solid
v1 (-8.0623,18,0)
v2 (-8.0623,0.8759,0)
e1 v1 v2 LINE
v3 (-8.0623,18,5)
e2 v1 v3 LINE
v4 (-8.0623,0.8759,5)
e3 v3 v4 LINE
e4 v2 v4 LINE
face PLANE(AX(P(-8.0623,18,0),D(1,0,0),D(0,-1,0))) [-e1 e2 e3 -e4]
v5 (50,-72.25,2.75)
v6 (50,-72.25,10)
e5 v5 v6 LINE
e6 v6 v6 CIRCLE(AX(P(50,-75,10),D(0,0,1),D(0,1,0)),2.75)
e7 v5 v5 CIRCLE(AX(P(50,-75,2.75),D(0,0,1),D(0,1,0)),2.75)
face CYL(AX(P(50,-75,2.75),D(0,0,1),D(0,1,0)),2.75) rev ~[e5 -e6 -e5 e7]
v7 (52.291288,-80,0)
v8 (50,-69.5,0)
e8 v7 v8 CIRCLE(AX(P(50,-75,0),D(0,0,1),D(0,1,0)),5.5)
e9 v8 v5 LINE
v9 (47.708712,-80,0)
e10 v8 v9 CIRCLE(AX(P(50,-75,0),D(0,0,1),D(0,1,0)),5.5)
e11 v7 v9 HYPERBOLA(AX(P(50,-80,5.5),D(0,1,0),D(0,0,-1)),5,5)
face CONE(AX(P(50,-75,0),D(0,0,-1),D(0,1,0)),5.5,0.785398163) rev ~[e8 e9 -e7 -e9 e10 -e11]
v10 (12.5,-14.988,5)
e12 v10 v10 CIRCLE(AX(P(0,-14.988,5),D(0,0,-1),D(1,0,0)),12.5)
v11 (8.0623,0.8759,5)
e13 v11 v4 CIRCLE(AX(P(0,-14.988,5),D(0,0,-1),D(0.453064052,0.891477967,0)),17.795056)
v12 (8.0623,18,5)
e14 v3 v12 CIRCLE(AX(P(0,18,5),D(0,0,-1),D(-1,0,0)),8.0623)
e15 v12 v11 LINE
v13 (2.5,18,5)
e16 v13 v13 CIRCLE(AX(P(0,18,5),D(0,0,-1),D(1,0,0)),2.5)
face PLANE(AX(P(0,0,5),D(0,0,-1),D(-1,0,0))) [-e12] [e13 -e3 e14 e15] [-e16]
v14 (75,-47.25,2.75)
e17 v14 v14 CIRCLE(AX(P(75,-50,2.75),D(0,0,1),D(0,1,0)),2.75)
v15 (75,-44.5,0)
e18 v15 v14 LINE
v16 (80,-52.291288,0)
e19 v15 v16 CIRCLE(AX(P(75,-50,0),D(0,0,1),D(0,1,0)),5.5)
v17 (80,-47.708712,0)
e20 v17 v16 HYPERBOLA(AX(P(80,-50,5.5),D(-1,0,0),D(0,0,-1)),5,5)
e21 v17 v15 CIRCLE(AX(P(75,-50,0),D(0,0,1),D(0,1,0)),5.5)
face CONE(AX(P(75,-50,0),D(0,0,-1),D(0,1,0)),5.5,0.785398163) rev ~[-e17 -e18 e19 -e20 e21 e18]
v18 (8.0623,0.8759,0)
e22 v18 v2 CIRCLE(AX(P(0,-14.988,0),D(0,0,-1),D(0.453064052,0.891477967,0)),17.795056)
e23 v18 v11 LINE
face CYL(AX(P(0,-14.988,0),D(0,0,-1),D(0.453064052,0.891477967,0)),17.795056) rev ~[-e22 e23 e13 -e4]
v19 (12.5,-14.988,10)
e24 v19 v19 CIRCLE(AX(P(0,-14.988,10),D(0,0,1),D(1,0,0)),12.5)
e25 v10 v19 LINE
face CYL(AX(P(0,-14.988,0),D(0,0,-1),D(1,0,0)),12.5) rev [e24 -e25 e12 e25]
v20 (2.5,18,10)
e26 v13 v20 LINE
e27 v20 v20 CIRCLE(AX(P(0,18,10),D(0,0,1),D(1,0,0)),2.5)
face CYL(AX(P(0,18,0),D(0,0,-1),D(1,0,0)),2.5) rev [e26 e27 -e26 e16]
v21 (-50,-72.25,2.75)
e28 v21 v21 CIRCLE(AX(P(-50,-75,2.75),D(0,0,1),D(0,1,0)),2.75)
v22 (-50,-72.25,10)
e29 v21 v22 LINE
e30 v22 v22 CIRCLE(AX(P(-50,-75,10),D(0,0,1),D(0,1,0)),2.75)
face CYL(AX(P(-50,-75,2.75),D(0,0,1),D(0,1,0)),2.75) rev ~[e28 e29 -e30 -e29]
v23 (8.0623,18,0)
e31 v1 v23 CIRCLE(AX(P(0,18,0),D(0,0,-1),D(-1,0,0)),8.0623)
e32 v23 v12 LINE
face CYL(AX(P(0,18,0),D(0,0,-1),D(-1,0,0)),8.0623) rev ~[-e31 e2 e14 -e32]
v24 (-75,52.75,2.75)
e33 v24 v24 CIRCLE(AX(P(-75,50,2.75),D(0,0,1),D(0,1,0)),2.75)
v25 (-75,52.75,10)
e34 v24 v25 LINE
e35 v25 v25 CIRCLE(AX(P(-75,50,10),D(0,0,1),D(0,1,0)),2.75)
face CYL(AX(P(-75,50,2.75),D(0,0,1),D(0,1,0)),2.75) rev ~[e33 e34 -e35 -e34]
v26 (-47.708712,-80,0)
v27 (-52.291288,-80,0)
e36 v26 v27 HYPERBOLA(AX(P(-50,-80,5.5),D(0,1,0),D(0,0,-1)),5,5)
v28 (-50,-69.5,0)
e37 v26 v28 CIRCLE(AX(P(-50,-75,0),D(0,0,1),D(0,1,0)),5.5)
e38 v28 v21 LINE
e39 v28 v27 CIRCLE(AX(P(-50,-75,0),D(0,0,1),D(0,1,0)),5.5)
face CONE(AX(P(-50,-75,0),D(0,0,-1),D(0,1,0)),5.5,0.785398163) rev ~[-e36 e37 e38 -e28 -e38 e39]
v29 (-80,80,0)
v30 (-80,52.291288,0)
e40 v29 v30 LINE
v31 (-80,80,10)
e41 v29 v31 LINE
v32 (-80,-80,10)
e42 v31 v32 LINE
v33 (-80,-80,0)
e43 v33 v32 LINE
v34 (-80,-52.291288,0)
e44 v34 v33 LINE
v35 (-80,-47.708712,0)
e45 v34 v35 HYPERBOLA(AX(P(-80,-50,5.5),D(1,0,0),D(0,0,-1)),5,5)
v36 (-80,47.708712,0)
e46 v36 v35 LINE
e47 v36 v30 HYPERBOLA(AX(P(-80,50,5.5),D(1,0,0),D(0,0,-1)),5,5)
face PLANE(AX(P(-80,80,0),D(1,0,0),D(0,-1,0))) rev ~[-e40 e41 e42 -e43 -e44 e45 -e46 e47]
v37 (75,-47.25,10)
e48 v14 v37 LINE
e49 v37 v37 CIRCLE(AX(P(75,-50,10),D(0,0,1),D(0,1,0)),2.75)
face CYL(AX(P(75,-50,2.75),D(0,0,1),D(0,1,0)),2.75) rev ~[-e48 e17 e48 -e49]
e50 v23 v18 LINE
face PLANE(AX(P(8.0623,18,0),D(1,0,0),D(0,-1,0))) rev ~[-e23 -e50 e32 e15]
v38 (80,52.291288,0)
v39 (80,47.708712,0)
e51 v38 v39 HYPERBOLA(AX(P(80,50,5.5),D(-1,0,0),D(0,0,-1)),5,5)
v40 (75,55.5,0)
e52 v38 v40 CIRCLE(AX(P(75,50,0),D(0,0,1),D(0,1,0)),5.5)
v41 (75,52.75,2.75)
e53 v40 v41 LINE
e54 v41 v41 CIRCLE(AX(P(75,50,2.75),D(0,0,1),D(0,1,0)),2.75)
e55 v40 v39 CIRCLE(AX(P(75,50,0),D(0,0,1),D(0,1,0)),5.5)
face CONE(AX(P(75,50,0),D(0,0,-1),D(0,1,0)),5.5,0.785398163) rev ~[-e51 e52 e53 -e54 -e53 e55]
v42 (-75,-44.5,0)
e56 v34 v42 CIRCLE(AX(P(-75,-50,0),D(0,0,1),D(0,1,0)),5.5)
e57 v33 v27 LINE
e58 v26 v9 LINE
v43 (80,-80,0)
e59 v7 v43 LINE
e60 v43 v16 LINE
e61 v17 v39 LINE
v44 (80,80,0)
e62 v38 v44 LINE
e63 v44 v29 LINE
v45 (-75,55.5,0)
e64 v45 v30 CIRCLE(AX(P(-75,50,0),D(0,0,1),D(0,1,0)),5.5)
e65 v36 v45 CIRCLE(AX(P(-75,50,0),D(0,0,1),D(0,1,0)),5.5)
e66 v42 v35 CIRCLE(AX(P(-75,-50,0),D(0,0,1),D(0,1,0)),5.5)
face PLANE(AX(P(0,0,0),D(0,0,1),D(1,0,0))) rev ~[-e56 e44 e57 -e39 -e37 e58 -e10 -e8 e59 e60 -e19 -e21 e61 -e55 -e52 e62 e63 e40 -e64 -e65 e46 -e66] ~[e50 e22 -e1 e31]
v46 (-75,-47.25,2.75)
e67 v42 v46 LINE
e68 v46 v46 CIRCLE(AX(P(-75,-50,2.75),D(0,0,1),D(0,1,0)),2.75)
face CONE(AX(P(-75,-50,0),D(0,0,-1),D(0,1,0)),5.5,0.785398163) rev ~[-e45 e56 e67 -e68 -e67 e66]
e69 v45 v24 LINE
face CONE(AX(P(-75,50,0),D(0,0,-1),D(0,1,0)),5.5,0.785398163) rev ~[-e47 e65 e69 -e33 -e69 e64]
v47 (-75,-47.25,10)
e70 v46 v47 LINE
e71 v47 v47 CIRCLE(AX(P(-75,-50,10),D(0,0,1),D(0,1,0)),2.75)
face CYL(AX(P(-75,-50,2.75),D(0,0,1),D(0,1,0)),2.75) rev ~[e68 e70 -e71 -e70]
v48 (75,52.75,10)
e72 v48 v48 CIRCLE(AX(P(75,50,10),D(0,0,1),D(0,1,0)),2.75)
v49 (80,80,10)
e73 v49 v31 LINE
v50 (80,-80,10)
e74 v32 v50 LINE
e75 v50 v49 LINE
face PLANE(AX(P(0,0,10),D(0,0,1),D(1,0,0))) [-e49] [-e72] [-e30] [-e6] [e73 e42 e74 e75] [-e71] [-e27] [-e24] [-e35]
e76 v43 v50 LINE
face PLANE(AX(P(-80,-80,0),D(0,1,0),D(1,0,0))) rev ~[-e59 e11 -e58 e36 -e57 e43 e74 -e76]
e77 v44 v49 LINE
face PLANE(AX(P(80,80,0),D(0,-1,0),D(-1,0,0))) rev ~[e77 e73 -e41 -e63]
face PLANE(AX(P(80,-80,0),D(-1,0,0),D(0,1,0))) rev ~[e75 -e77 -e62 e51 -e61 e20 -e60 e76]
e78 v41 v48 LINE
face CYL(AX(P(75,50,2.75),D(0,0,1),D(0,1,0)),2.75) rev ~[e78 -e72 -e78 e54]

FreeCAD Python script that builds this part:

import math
import FreeCAD as App
import Part
import Sketcher
Q = App.Units.Quantity

doc = App.newDocument("Part")
body = doc.addObject("PartDesign::Body", "Body")

sketch1 = body.newObject("Sketcher::SketchObject", "Sketch")
sketch1.AttachmentSupport = (doc.getObject("XY_Plane"), [""])
sketch1.MapMode = "FlatFace"
sketch1.addGeometry(Part.LineSegment(App.Vector(-80, 80, 0), App.Vector(-80, -80, 0)), False)
sketch1.addGeometry(Part.LineSegment(App.Vector(-80, -80, 0), App.Vector(80, -80, 0)), False)
sketch1.addGeometry(Part.LineSegment(App.Vector(80, -80, 0), App.Vector(80, 80, 0)), False)
sketch1.addGeometry(Part.LineSegment(App.Vector(80, 80, 0), App.Vector(-80, 80, 0)), False)
sketch1.addGeometry(Part.Circle(App.Vector(0, -15, 0), App.Vector(0, 0, 1), 12.5), False)
sketch1.addGeometry(Part.Circle(App.Vector(0, 18, 0), App.Vector(0, 0, 1), 2.5), False)
sketch1.addConstraint(Sketcher.Constraint("Coincident", 0, 2, 1, 1))
sketch1.addConstraint(Sketcher.Constraint("Coincident", 1, 2, 2, 1))
sketch1.addConstraint(Sketcher.Constraint("Coincident", 2, 2, 3, 1))
sketch1.addConstraint(Sketcher.Constraint("Coincident", 3, 2, 0, 1))
sketch1.addConstraint(Sketcher.Constraint("Vertical", 0))
sketch1.addConstraint(Sketcher.Constraint("Horizontal", 1))
sketch1.addConstraint(Sketcher.Constraint("Vertical", 2))
sketch1.addConstraint(Sketcher.Constraint("Horizontal", 3))
sketch1.addConstraint(Sketcher.Constraint("Symmetric", 0, 2, 2, 2, -1, 1))
sketch1.addConstraint(Sketcher.Constraint("PointOnObject", 4, 3, -2))
sketch1.addConstraint(Sketcher.Constraint("PointOnObject", 5, 3, -2))
sketch1.addConstraint(Sketcher.Constraint("Equal", 3, 0))
sketch1.addConstraint(Sketcher.Constraint("Diameter", 4, Q("25 mm")))
sketch1.addConstraint(Sketcher.Constraint("Diameter", 5, Q("5 mm")))
sketch1.addConstraint(Sketcher.Constraint("DistanceX", 1, 1, 1, 2, Q("160 mm")))
sketch1.addConstraint(Sketcher.Constraint("DistanceY", -1, 1, 5, 3, Q("18 mm")))
sketch1.addConstraint(Sketcher.Constraint("DistanceY", 4, 3, -1, 1, Q("14.988 mm")))
pad1 = body.newObject("PartDesign::Pad", "Pad")
pad1.Profile = sketch1
pad1.Length = 10

sketch2 = body.newObject("Sketcher::SketchObject", "Sketch001")
sketch2.AttachmentSupport = (doc.getObject("XY_Plane"), [""])
sketch2.MapMode = "FlatFace"
sketch2.addGeometry(Part.Circle(App.Vector(-75, 50, 0), App.Vector(0, 0, 1), 2.8), False)
sketch2.addGeometry(Part.Circle(App.Vector(-75, -50, 0), App.Vector(0, 0, 1), 2.8), False)
sketch2.addGeometry(Part.Circle(App.Vector(-50, -75, 0), App.Vector(0, 0, 1), 2.8), False)
sketch2.addGeometry(Part.Circle(App.Vector(50, -75, 0), App.Vector(0, 0, 1), 2.8), False)
sketch2.addGeometry(Part.Circle(App.Vector(75, -50, 0), App.Vector(0, 0, 1), 2.8), False)
sketch2.addGeometry(Part.Circle(App.Vector(75, 50, 0), App.Vector(0, 0, 1), 2.8), False)
sketch2.addConstraint(Sketcher.Constraint("Equal", 0, 1))
sketch2.addConstraint(Sketcher.Constraint("Equal", 1, 2))
sketch2.addConstraint(Sketcher.Constraint("Equal", 2, 3))
sketch2.addConstraint(Sketcher.Constraint("Equal", 3, 4))
sketch2.addConstraint(Sketcher.Constraint("Equal", 4, 5))
sketch2.addConstraint(Sketcher.Constraint("Symmetric", 0, 3, 4, 3, -1, 1))
sketch2.addConstraint(Sketcher.Constraint("Symmetric", 1, 3, 5, 3, -1, 1))
sketch2.addConstraint(Sketcher.Constraint("Symmetric", 2, 3, 3, 3, -2))
sketch2.addConstraint(Sketcher.Constraint("Symmetric", 1, 3, 4, 3, -2))
sketch2.addConstraint(Sketcher.Constraint("Diameter", 0, Q("5.5 mm")))
sketch2.addConstraint(Sketcher.Constraint("DistanceX", 0, 3, -1, 1, Q("75 mm")))
sketch2.addConstraint(Sketcher.Constraint("DistanceY", -1, 1, 0, 3, Q("50 mm")))
sketch2.addConstraint(Sketcher.Constraint("DistanceX", 2, 3, -1, 1, Q("50 mm")))
sketch2.addConstraint(Sketcher.Constraint("DistanceY", 2, 3, -1, 1, Q("75 mm")))
doc.recompute()
hole = body.newObject("PartDesign::Hole", "Hole")
hole.Profile = sketch2
hole.ThreadType = "None"
hole.Diameter = 5.5
hole.DepthType = "Dimension"
hole.Depth = 20
hole.DrillPoint = "Angled"
hole.DrillPointAngle = 118
hole.HoleCutType = "Countersink"
hole.HoleCutDiameter = 11
hole.HoleCutCountersinkAngle = 90
hole.Reversed = True

sketch3 = body.newObject("Sketcher::SketchObject", "Sketch002")
sketch3.AttachmentSupport = (doc.getObject("XY_Plane"), [""])
sketch3.MapMode = "FlatFace"
sketch3.addGeometry(Part.LineSegment(App.Vector(-8.1, 0.9, 0), App.Vector(-8.1, 18, 0)), False)
sketch3.addGeometry(Part.ArcOfCircle(Part.Circle(App.Vector(0, 18, 0), App.Vector(0, 0, 1), 8.1), math.radians(0), math.radians(180)), False)
sketch3.addGeometry(Part.LineSegment(App.Vector(8.1, 18, 0), App.Vector(8.1, 0.9, 0)), False)
sketch3.addGeometry(Part.ArcOfCircle(Part.Circle(App.Vector(0, -15, 0), App.Vector(0, 0, 1), 17.8), math.radians(117), math.radians(423)), False)
sketch3.addGeometry(Part.Circle(App.Vector(0, -15, 0), App.Vector(0, 0, 1), 12.5), False)
sketch3.addGeometry(Part.Circle(App.Vector(0, 18, 0), App.Vector(0, 0, 1), 2.5), False)
sketch3.addConstraint(Sketcher.Constraint("Tangent", 0, 2, 1, 2))
sketch3.addConstraint(Sketcher.Constraint("Tangent", 1, 1, 2, 1))
sketch3.addConstraint(Sketcher.Constraint("Coincident", 2, 2, 3, 2))
sketch3.addConstraint(Sketcher.Constraint("Coincident", 3, 1, 0, 1))
sketch3.addConstraint(Sketcher.Constraint("Vertical", 0))
sketch3.addConstraint(Sketcher.Constraint("Vertical", 2))
sketch3.addConstraint(Sketcher.Constraint("Coincident", 4, 3, 3, 3))
sketch3.addConstraint(Sketcher.Constraint("Coincident", 5, 3, 1, 3))
sketch3.addConstraint(Sketcher.Constraint("Symmetric", 2, 2, 3, 1, -2))
sketch3.addConstraint(Sketcher.Constraint("Diameter", 4, Q("25 mm")))
sketch3.addConstraint(Sketcher.Constraint("Diameter", 5, Q("5 mm")))
sketch3.addConstraint(Sketcher.Constraint("DistanceY", -1, 1, 1, 3, Q("18 mm")))
sketch3.addConstraint(Sketcher.Constraint("Radius", 3, Q("17.795 mm")))
sketch3.addConstraint(Sketcher.Constraint("Radius", 1, Q("8.0623 mm")))
sketch3.addConstraint(Sketcher.Constraint("DistanceY", 0, 1, 0, 2, Q("17.124 mm")))
pocket1 = body.newObject("PartDesign::Pocket", "Pocket")
pocket1.Profile = sketch3
pocket1.Length = 5
pocket1.Reversed = True

doc.recompute()
